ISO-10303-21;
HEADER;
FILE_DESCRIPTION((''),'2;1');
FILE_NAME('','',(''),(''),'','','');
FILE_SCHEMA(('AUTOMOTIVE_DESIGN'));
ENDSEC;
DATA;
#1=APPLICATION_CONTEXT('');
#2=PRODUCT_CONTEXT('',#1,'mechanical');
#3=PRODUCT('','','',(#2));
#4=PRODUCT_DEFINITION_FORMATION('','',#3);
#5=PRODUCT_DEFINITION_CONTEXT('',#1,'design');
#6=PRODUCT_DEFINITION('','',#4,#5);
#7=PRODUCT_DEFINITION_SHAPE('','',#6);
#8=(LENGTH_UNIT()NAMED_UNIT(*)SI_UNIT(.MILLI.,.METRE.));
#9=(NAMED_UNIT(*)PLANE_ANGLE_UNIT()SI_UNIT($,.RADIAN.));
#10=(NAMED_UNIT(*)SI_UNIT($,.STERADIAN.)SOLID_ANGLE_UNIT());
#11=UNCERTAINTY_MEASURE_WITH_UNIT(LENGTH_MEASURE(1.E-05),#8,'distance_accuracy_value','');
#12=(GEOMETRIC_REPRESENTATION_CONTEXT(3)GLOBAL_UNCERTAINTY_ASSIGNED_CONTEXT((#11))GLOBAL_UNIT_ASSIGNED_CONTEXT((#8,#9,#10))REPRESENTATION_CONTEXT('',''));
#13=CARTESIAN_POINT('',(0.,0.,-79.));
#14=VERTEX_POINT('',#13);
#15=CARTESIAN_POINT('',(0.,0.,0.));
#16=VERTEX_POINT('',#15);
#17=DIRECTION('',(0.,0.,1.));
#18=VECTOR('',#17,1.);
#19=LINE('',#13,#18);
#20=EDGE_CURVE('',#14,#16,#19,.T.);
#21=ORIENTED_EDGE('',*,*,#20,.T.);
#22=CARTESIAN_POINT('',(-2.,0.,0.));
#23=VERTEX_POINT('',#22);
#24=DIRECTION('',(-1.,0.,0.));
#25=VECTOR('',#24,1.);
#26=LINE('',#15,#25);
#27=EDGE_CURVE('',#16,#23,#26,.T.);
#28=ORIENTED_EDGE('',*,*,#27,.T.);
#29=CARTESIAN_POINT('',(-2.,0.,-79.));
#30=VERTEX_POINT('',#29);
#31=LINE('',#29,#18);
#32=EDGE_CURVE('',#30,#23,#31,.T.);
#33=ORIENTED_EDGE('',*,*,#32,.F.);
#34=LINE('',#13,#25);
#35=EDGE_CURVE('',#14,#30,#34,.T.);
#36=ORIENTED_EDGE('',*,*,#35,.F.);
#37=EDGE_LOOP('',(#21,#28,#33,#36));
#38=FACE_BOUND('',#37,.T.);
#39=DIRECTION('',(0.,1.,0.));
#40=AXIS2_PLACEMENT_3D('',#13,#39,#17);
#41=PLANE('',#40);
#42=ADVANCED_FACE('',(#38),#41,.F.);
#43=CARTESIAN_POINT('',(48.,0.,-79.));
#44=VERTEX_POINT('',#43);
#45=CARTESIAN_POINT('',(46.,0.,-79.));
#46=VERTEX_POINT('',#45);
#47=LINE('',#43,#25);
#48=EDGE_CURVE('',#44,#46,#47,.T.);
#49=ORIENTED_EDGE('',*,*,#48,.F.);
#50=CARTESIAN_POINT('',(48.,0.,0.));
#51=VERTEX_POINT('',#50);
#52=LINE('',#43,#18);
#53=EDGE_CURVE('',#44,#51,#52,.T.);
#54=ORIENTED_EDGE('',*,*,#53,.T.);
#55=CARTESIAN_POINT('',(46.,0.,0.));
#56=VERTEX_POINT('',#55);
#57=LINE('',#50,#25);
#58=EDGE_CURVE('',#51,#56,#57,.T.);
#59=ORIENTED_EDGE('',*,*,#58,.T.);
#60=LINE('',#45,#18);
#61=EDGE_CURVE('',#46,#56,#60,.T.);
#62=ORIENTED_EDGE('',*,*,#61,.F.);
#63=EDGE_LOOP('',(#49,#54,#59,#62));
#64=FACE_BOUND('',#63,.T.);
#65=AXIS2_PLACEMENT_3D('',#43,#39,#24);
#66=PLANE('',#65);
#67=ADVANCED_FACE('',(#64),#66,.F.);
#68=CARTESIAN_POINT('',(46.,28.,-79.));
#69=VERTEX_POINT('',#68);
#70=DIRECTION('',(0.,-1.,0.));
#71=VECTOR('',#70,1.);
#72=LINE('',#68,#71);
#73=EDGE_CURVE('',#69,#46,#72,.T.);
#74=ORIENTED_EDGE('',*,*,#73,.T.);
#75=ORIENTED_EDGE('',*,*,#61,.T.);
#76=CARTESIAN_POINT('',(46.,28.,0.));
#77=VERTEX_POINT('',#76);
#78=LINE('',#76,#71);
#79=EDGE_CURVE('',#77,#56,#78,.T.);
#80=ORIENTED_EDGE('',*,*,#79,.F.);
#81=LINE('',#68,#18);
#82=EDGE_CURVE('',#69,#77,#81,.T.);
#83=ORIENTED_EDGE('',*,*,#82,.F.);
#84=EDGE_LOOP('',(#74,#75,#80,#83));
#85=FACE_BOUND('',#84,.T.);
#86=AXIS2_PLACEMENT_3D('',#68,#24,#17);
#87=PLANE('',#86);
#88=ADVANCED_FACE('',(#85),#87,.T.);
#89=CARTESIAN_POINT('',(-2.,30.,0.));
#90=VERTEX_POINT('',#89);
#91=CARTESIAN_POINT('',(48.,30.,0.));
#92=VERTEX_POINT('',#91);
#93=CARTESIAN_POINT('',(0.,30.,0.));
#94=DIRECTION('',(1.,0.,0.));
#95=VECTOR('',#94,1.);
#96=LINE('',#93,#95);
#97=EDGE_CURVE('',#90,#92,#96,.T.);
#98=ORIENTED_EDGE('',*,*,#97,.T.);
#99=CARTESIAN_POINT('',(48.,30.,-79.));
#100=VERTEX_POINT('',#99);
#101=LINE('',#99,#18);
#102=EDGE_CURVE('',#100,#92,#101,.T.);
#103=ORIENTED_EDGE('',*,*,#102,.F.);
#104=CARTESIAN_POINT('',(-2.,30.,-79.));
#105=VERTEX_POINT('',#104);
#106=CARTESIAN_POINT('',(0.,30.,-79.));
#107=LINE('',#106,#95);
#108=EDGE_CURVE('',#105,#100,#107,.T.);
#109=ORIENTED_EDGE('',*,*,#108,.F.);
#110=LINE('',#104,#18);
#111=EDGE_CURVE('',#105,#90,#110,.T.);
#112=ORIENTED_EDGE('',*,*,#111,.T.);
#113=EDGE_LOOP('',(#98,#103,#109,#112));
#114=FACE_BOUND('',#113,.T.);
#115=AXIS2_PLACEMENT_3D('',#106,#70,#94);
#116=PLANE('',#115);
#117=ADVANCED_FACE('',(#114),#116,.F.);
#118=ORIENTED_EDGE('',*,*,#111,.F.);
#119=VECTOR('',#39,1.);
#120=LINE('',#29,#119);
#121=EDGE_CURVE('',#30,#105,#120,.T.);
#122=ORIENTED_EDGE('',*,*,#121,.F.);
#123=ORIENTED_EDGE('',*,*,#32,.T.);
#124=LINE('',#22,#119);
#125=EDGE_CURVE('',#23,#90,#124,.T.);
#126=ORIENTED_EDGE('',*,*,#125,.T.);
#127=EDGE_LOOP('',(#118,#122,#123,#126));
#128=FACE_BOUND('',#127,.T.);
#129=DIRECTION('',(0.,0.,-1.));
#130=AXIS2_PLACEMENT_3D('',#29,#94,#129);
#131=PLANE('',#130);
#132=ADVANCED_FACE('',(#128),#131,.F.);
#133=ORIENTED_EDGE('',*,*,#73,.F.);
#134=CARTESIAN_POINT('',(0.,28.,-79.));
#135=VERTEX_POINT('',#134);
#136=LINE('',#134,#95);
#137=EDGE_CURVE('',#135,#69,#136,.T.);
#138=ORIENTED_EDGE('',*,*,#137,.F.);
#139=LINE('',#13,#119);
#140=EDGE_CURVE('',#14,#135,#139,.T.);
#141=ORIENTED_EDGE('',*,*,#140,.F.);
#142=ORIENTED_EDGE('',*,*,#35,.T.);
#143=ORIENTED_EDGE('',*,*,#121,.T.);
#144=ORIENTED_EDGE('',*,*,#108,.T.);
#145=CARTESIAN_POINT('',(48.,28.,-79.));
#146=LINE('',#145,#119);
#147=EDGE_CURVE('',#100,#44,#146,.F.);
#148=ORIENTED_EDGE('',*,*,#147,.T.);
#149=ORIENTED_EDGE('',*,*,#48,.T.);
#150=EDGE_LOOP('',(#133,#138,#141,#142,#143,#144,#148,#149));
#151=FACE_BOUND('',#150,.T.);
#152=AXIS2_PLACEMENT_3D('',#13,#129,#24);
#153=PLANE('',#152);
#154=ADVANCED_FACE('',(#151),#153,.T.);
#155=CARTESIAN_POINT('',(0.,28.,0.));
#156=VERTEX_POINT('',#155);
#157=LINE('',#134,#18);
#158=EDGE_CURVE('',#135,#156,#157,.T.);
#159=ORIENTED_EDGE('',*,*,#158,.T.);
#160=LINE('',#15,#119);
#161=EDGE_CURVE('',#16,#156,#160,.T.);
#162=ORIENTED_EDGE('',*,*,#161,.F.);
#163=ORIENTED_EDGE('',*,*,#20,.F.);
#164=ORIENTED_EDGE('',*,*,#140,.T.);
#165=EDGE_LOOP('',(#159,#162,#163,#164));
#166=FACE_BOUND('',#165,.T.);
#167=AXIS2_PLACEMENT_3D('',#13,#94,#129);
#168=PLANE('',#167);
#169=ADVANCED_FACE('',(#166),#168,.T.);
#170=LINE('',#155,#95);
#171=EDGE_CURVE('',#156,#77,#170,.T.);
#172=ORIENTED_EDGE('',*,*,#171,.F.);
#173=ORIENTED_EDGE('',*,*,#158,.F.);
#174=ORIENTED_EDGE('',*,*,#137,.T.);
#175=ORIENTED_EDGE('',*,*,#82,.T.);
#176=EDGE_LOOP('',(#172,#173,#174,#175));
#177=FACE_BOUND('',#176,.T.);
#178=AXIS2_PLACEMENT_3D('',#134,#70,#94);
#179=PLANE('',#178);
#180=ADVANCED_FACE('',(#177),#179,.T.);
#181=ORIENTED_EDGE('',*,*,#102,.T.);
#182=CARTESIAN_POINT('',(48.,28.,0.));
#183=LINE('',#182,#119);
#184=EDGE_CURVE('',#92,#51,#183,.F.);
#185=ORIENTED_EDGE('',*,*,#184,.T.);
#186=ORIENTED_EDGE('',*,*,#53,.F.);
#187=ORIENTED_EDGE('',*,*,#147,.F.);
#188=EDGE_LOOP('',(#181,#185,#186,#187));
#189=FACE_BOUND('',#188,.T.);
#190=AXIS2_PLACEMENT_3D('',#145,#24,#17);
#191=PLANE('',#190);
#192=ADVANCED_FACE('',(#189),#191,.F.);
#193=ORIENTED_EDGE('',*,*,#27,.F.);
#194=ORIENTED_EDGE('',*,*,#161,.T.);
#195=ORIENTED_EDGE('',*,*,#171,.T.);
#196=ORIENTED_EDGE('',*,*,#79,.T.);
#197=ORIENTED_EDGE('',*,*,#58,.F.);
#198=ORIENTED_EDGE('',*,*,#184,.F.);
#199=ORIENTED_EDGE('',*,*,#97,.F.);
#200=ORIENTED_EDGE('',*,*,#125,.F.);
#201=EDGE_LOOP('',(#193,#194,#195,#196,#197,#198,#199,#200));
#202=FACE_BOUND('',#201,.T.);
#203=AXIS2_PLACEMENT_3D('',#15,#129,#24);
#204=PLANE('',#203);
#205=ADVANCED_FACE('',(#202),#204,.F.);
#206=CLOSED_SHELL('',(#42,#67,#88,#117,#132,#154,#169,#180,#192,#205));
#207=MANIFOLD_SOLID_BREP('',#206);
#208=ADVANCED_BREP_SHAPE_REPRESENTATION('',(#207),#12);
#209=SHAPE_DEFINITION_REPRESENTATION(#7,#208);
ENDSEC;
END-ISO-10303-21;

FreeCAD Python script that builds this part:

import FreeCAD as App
import Part
import Sketcher


def add_polygon(sketch, points):
    """Adds a closed chain of lines whose ends are joined by coincident constraints."""
    first, n = sketch.GeometryCount, len(points)
    for a, b in zip(points, points[1:] + points[:1]):
        sketch.addGeometry(Part.LineSegment(App.Vector(*a, 0), App.Vector(*b, 0)), False)
    for i in range(n):
        sketch.addConstraint(Sketcher.Constraint("Coincident", first + i, 2, first + (i + 1) % n, 1))

doc = App.newDocument("Part")
params = doc.addObject("Spreadsheet::Sheet", "Params")
for row, (alias, value) in enumerate([
    ("sketch1_width", "46 mm"),
    ("sketch1_width2", "2 mm"),
    ("sketch1_height", "28 mm"),
    ("sketch1_height2", "30 mm"),
    ("pad1_length", "79 mm"),
], start=1):
    params.set(f"A{row}", alias)
    params.set(f"B{row}", "=" + value)
    params.setAlias(f"B{row}", alias)

body = doc.addObject("PartDesign::Body", "Body")

# Sketch on XY plane
sketch1 = body.newObject("Sketcher::SketchObject", "Sketch")
sketch1.AttachmentSupport = (doc.getObject("XY_Plane"), [""])
sketch1.MapMode = "FlatFace"
add_polygon(sketch1, [(0, 0), (0, 28), (46, 28), (46, 0), (48, 0), (48, 30), (-2, 30), (-2, 0)])  # lines 0-7
sketch1.addConstraint([
    Sketcher.Constraint("Vertical", 0),
    Sketcher.Constraint("Horizontal", 1),
    Sketcher.Constraint("Vertical", 2),
    Sketcher.Constraint("Horizontal", 3),
    Sketcher.Constraint("Vertical", 4),
    Sketcher.Constraint("Horizontal", 5),
    Sketcher.Constraint("Vertical", 6),
    Sketcher.Constraint("Horizontal", 7),
    Sketcher.Constraint("Coincident", 7, 2, -1, 1),
    Sketcher.Constraint("PointOnObject", 2, 2, -1),
    Sketcher.Constraint("Equal", 3, 7),
    Sketcher.Constraint("DistanceX", 1, 1, 1, 2, 46.0),
    Sketcher.Constraint("DistanceX", 3, 1, 3, 2, 2.0),
    Sketcher.Constraint("DistanceY", 0, 1, 0, 2, 28.0),
    Sketcher.Constraint("DistanceY", 4, 1, 4, 2, 30.0),
])
sketch1.setExpression("Constraints[19]", "Params.sketch1_width")
sketch1.setExpression("Constraints[20]", "Params.sketch1_width2")
sketch1.setExpression("Constraints[21]", "Params.sketch1_height")
sketch1.setExpression("Constraints[22]", "Params.sketch1_height2")
pad1 = body.newObject("PartDesign::Pad", "Pad")
pad1.Profile = sketch1
pad1.setExpression("Length", "Params.pad1_length")
pad1.Reversed = True

doc.recompute()
